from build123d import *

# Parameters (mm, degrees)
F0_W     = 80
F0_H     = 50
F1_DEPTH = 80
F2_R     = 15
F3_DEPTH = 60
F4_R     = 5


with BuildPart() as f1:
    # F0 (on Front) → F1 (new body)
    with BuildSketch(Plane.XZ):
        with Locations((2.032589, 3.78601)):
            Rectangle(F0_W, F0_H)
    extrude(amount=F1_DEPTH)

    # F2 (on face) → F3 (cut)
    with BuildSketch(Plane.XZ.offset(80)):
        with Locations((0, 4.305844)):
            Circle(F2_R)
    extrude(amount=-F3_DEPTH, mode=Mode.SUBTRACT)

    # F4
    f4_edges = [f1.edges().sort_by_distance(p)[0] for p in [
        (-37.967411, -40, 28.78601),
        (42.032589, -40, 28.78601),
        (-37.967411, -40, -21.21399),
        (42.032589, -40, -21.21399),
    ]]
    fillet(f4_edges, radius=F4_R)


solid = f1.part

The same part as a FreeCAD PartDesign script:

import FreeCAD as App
import Part
import Sketcher
Q = App.Units.Quantity


def edges_at(feature, points):
    """Names of the edges that pass closest to the given points."""
    edges = feature.Shape.Edges
    near = lambda p: min(range(len(edges)), key=lambda i: edges[i].distToShape(Part.Vertex(*p))[0])
    return sorted({f"Edge{near(p) + 1}" for p in points})


def add_polygon(sketch, points):
    """Adds a closed chain of lines whose ends are joined by coincident constraints."""
    first, n = sketch.GeometryCount, len(points)
    for a, b in zip(points, points[1:] + points[:1]):
        sketch.addGeometry(Part.LineSegment(App.Vector(*a, 0), App.Vector(*b, 0)), False)
    for i in range(n):
        sketch.addConstraint(Sketcher.Constraint("Coincident", first + i, 2, first + (i + 1) % n, 1))

doc = App.newDocument("Part")
params = doc.addObject("Spreadsheet::Sheet", "Params")
for row, (alias, value) in enumerate([
    ("sketch1_width", "80 mm"),
    ("sketch1_height", "50 mm"),
    ("pad1_length", "80 mm"),
    ("sketch2_diameter", "30 mm"),
    ("pocket1_length", "60 mm"),
    ("fillet_radius", "5 mm"),
], start=1):
    params.set(f"A{row}", alias)
    params.set(f"B{row}", "=" + value)
    params.setAlias(f"B{row}", alias)

body = doc.addObject("PartDesign::Body", "Body")

# Sketch on XZ plane
sketch1 = doc.addObject("Sketcher::SketchObject", "Sketch")
body.addObject(sketch1)
sketch1.AttachmentSupport = (doc.XZ_Plane, [""])
sketch1.MapMode = "FlatFace"
add_polygon(sketch1, [(-37.967411, 28.78601), (-37.967411, -21.21399), (42.032589, -21.21399), (42.032589, 28.78601)])  # lines 0-3
sketch1.addConstraint([
    Sketcher.Constraint("Vertical", 0),
    Sketcher.Constraint("Horizontal", 1),
    Sketcher.Constraint("Vertical", 2),
    Sketcher.Constraint("Horizontal", 3),
    Sketcher.Constraint("DistanceX", 1, 1, 1, 2, Q("80 mm")),
    Sketcher.Constraint("DistanceY", 0, 2, 0, 1, Q("50 mm")),
    Sketcher.Constraint("DistanceX", 0, 2, -1, 1, Q("37.967411 mm")),
    Sketcher.Constraint("DistanceY", 0, 2, -1, 1, Q("21.21399 mm")),
])
sketch1.setExpression("Constraints[8]", "Params.sketch1_width")
sketch1.setExpression("Constraints[9]", "Params.sketch1_height")
pad1 = doc.addObject("PartDesign::Pad", "Pad")
body.addObject(pad1)
pad1.Profile = sketch1
pad1.setExpression("Length", "Params.pad1_length")

# Sketch on XZ plane
sketch2 = doc.addObject("Sketcher::SketchObject", "Sketch001")
body.addObject(sketch2)
sketch2.AttachmentSupport = (doc.XZ_Plane, [""])
sketch2.MapMode = "FlatFace"
sketch2.AttachmentOffset = App.Placement(App.Vector(0, 0, 80), App.Rotation())
sketch2.addGeometry(Part.Circle(App.Vector(0, 4.305844, 0), App.Vector(0, 0, 1), 15), False)
sketch2.addConstraint([
    Sketcher.Constraint("PointOnObject", 0, 3, -2),
    Sketcher.Constraint("Diameter", 0, Q("30 mm")),
    Sketcher.Constraint("DistanceY", -1, 1, 0, 3, Q("4.305844 mm")),
])
sketch2.setExpression("Constraints[1]", "Params.sketch2_diameter")
pocket1 = doc.addObject("PartDesign::Pocket", "Pocket")
body.addObject(pocket1)
pocket1.Profile = sketch2
pocket1.setExpression("Length", "Params.pocket1_length")
doc.recompute()

fillet = doc.addObject("PartDesign::Fillet", "Fillet")
body.addObject(fillet)
fillet.Base = (pocket1, edges_at(pocket1, [
    (-37.967, -40, 28.786),
    (42.033, -40, 28.786),
    (-37.967, -40, -21.214),
    (42.033, -40, -21.214),
]))
fillet.setExpression("Radius", "Params.fillet_radius")

doc.recompute()
